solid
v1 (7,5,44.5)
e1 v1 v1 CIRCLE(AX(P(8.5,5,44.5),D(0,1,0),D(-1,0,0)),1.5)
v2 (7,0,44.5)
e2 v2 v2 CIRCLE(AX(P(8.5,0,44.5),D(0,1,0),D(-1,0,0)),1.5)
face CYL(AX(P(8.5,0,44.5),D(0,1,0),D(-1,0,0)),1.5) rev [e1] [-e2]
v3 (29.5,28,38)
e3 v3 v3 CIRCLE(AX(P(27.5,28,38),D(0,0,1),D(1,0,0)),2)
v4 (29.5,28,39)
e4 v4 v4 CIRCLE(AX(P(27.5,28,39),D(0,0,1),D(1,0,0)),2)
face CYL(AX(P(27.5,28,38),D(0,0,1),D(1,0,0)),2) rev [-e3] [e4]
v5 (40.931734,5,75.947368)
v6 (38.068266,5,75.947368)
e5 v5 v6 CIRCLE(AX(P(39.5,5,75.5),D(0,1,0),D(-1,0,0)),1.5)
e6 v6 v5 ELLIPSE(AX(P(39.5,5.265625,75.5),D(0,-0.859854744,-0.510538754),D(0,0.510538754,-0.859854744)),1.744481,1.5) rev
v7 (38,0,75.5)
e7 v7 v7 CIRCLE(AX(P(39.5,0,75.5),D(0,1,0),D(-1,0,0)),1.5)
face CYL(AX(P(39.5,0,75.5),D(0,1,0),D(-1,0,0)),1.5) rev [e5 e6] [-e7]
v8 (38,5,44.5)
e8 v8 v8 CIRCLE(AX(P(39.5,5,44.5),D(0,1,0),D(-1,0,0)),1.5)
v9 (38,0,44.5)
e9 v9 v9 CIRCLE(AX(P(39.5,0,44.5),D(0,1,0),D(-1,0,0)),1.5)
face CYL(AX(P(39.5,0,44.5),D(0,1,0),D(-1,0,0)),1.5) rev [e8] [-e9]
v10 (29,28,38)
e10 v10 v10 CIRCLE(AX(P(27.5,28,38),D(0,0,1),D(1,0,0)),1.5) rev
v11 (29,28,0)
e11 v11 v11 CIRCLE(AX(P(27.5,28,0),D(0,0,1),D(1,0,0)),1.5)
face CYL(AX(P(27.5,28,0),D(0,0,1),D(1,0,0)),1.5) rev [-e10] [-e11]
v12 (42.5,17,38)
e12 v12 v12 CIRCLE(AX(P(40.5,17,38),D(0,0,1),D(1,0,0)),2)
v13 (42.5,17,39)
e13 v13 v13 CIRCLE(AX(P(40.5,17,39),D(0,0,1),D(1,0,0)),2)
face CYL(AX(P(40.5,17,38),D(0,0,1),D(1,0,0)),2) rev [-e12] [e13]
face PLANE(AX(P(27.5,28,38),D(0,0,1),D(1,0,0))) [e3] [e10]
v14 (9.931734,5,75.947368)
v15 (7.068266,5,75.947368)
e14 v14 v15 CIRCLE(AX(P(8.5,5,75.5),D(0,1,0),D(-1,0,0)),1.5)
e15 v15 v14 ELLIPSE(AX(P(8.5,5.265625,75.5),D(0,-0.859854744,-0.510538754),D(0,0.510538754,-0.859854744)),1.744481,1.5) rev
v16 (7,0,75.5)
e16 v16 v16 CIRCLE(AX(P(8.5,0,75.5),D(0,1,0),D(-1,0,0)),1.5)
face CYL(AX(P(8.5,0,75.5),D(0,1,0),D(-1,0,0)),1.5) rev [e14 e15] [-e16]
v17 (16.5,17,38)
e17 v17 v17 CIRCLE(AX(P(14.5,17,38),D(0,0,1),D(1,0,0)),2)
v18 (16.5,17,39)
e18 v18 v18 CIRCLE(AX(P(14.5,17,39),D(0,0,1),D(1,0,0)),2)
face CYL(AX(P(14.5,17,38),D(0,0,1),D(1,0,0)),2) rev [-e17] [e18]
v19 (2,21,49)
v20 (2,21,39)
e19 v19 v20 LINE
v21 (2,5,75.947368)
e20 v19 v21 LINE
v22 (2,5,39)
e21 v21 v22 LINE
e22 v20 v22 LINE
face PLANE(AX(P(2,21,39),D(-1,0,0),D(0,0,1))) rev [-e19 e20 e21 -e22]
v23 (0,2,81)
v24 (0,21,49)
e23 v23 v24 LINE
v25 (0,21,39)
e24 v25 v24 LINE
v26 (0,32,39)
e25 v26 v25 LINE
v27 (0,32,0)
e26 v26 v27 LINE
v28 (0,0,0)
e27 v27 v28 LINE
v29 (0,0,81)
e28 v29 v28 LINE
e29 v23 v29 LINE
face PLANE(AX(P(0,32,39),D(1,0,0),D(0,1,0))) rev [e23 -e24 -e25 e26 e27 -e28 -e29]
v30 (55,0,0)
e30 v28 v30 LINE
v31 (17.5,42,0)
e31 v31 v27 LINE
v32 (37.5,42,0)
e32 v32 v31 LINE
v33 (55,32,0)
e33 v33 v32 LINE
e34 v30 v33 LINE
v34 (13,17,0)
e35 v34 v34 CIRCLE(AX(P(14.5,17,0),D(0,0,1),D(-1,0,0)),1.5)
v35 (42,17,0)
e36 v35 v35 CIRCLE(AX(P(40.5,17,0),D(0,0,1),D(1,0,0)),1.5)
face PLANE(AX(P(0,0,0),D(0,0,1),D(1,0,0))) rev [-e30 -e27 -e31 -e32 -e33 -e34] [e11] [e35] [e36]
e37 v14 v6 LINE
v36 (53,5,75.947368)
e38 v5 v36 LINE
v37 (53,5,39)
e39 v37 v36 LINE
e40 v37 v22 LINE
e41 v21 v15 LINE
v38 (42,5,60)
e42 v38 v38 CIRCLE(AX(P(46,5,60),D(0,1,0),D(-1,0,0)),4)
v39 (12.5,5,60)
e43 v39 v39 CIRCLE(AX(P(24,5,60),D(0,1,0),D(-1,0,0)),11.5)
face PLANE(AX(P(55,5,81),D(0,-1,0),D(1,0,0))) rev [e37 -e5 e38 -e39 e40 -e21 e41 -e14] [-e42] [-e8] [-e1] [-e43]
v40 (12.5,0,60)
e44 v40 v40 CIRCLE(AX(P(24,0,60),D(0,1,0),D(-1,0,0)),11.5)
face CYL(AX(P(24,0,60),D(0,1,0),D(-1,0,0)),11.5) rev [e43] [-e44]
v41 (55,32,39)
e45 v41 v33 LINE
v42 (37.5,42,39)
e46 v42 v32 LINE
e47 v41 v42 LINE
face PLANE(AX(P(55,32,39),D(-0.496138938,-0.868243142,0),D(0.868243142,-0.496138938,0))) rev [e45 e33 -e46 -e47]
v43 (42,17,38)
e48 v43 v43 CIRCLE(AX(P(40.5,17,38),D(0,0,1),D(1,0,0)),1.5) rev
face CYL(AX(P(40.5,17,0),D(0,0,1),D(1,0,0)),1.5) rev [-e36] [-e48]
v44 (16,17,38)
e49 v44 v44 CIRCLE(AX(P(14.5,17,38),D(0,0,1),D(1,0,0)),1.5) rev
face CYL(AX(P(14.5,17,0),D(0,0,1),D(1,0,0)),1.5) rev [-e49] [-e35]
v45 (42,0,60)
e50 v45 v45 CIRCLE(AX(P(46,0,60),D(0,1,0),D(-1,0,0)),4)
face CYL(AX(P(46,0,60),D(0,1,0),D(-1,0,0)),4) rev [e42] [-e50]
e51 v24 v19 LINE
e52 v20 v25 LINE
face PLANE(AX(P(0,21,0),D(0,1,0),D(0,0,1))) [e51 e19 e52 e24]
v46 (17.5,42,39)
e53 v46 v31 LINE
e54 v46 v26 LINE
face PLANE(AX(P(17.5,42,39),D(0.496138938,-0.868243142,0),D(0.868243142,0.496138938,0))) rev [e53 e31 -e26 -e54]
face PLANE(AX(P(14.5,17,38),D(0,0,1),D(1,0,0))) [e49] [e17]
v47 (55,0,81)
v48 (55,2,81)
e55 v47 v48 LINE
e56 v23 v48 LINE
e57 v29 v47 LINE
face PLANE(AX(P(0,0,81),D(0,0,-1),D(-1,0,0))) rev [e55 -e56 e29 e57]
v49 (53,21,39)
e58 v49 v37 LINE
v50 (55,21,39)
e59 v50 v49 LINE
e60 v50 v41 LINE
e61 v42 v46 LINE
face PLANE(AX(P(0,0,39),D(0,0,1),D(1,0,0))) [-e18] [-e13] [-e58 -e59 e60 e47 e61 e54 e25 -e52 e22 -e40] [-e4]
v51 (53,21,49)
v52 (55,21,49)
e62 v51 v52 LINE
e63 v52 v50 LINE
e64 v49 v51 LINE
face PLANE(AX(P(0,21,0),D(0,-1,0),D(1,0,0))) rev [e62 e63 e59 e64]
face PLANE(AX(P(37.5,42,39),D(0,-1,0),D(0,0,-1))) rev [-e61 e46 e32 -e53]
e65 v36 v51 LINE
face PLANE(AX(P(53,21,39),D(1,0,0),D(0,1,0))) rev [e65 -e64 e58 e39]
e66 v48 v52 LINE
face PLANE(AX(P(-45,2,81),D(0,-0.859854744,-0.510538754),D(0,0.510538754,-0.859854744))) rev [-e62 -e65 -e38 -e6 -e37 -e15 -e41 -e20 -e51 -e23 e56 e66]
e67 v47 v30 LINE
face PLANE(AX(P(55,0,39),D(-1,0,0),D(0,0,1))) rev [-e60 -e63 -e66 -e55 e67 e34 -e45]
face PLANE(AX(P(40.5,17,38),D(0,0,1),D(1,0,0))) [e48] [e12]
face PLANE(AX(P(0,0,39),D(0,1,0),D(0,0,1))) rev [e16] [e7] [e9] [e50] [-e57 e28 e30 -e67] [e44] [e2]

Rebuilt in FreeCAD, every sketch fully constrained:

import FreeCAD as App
import Part
import Sketcher

doc = App.newDocument("Part")
body = doc.addObject("PartDesign::Body", "Body")

# Sketch on XY plane
sketch1 = body.newObject("Sketcher::SketchObject", "Sketch")
sketch1.AttachmentSupport = (doc.getObject("XY_Plane"), [""])
sketch1.MapMode = "FlatFace"
sketch1.addGeometry([
    Part.LineSegment(App.Vector(0, 0, 0), App.Vector(55, 0, 0)),  # 0
    Part.LineSegment(App.Vector(55, 0, 0), App.Vector(55, 32, 0)),  # 1
    Part.LineSegment(App.Vector(55, 32, 0), App.Vector(38, 42, 0)),  # 2
    Part.LineSegment(App.Vector(38, 42, 0), App.Vector(18, 42, 0)),  # 3
    Part.LineSegment(App.Vector(18, 42, 0), App.Vector(0, 32, 0)),  # 4
    Part.LineSegment(App.Vector(0, 32, 0), App.Vector(0, 0, 0)),  # 5
], False)
sketch1.addConstraint([
    Sketcher.Constraint("Coincident", 0, 2, 1, 1),
    Sketcher.Constraint("Coincident", 1, 2, 2, 1),
    Sketcher.Constraint("Coincident", 2, 2, 3, 1),
    Sketcher.Constraint("Coincident", 3, 2, 4, 1),
    Sketcher.Constraint("Coincident", 4, 2, 5, 1),
    Sketcher.Constraint("Coincident", 5, 2, 0, 1),
    Sketcher.Constraint("Horizontal", 0),
    Sketcher.Constraint("Vertical", 1),
    Sketcher.Constraint("Horizontal", 3),
    Sketcher.Constraint("Vertical", 5),
    Sketcher.Constraint("Coincident", 5, 2, -1, 1),
    Sketcher.Constraint("Horizontal", 1, 2, 4, 2),
    Sketcher.Constraint("Equal", 2, 4),
    Sketcher.Constraint("DistanceX", 0, 1, 0, 2, 55.0),
    Sketcher.Constraint("DistanceX", 3, 2, 3, 1, 20.0),
    Sketcher.Constraint("DistanceY", 1, 1, 1, 2, 32.0),
    Sketcher.Constraint("DistanceY", -1, 1, 2, 2, 42.0),
])
pad1 = body.newObject("PartDesign::Pad", "Pad")
pad1.Profile = sketch1
pad1.Length = 39

# Sketch on XY plane
sketch2 = body.newObject("Sketcher::SketchObject", "Sketch001")
sketch2.AttachmentSupport = (doc.getObject("XY_Plane"), [""])
sketch2.MapMode = "FlatFace"
sketch2.AttachmentOffset = App.Placement(App.Vector(0, 0, 39), App.Rotation())
sketch2.addGeometry([
    Part.LineSegment(App.Vector(0, 5, 0), App.Vector(0, 0, 0)),
    Part.LineSegment(App.Vector(0, 0, 0), App.Vector(55, 0, 0)),
    Part.LineSegment(App.Vector(55, 0, 0), App.Vector(55, 5, 0)),
    Part.LineSegment(App.Vector(55, 5, 0), App.Vector(0, 5, 0)),
], False)
sketch2.addConstraint([
    Sketcher.Constraint("Coincident", 0, 2, 1, 1),
    Sketcher.Constraint("Coincident", 1, 2, 2, 1),
    Sketcher.Constraint("Coincident", 2, 2, 3, 1),
    Sketcher.Constraint("Coincident", 3, 2, 0, 1),
    Sketcher.Constraint("Vertical", 0),
    Sketcher.Constraint("Horizontal", 1),
    Sketcher.Constraint("Vertical", 2),
    Sketcher.Constraint("Horizontal", 3),
    Sketcher.Constraint("Coincident", 0, 2, -1, 1),
    Sketcher.Constraint("DistanceX", 1, 1, 1, 2, 55.0),
    Sketcher.Constraint("DistanceY", 0, 2, 0, 1, 5.0),
])
pad2 = body.newObject("PartDesign::Pad", "Pad001")
pad2.Profile = sketch2
pad2.Length = 42

# Sketch on XZ plane
sketch3 = body.newObject("Sketcher::SketchObject", "Sketch002")
sketch3.AttachmentSupport = (doc.getObject("XZ_Plane"), [""])
sketch3.MapMode = "FlatFace"
sketch3.AttachmentOffset = App.Placement(App.Vector(0, 0, -5), App.Rotation())
sketch3.addGeometry([
    Part.Circle(App.Vector(24, 60, 0), App.Vector(0, 0, 1), 11.5),  # 0
    Part.Circle(App.Vector(8.5, 44.5, 0), App.Vector(0, 0, 1), 1.5),  # 1
    Part.Circle(App.Vector(39.5, 44.5, 0), App.Vector(0, 0, 1), 1.5),  # 2
    Part.Circle(App.Vector(39.5, 75.5, 0), App.Vector(0, 0, 1), 1.5),  # 3
    Part.Circle(App.Vector(8.5, 75.5, 0), App.Vector(0, 0, 1), 1.5),  # 4
    Part.Circle(App.Vector(46, 60, 0), App.Vector(0, 0, 1), 4),  # 5
], False)
sketch3.addConstraint([
    Sketcher.Constraint("Equal", 1, 2),
    Sketcher.Constraint("Equal", 2, 3),
    Sketcher.Constraint("Equal", 3, 4),
    Sketcher.Constraint("Horizontal", 1, 3, 2, 3),
    Sketcher.Constraint("Horizontal", 3, 3, 4, 3),
    Sketcher.Constraint("Horizontal", 0, 3, 5, 3),
    Sketcher.Constraint("Vertical", 2, 3, 3, 3),
    Sketcher.Constraint("Vertical", 1, 3, 4, 3),
    Sketcher.Constraint("Diameter", 0, 23.0),
    Sketcher.Constraint("Diameter", 1, 3.0),
    Sketcher.Constraint("Diameter", 5, 8.0),
    Sketcher.Constraint("DistanceX", -1, 1, 0, 3, 24.0),
    Sketcher.Constraint("DistanceY", -1, 1, 0, 3, 60.0),
    Sketcher.Constraint("DistanceX", -1, 1, 5, 3, 46.0),
    Sketcher.Constraint("DistanceX", 1, 3, 2, 3, 31.0),
    Sketcher.Constraint("DistanceY", 2, 3, 3, 3, 31.0),
    Sketcher.Constraint("DistanceX", -1, 1, 1, 3, 8.5),
    Sketcher.Constraint("DistanceY", -1, 1, 1, 3, 44.5),
])
pocket1 = body.newObject("PartDesign::Pocket", "Pocket")
pocket1.Profile = sketch3
pocket1.Type = "ThroughAll"
pocket1.Reversed = True

# Sketch on XY plane
sketch4 = body.newObject("Sketcher::SketchObject", "Sketch003")
sketch4.AttachmentSupport = (doc.getObject("XY_Plane"), [""])
sketch4.MapMode = "FlatFace"
sketch4.AttachmentOffset = App.Placement(App.Vector(0, 0, 39), App.Rotation())
sketch4.addGeometry([
    Part.Circle(App.Vector(27.5, 28, 0), App.Vector(0, 0, 1), 1.5),
    Part.Circle(App.Vector(40.5, 17, 0), App.Vector(0, 0, 1), 1.5),
    Part.Circle(App.Vector(14.5, 17, 0), App.Vector(0, 0, 1), 1.5),
], False)
sketch4.addConstraint([
    Sketcher.Constraint("Equal", 0, 1),
    Sketcher.Constraint("Equal", 1, 2),
    Sketcher.Constraint("Horizontal", 1, 3, 2, 3),
    Sketcher.Constraint("Diameter", 0, 3.0),
    Sketcher.Constraint("DistanceY", -1, 1, 0, 3, 28.0),
    Sketcher.Constraint("DistanceY", -1, 1, 1, 3, 17.0),
    Sketcher.Constraint("DistanceX", 0, 3, 1, 3, 13.0),
    Sketcher.Constraint("DistanceX", 2, 3, 0, 3, 13.0),
    Sketcher.Constraint("DistanceX", -1, 1, 0, 3, 27.5),
])
pocket2 = body.newObject("PartDesign::Pocket", "Pocket001")
pocket2.Profile = sketch4
pocket2.Type = "ThroughAll"

# Sketch on XY plane
sketch5 = body.newObject("Sketcher::SketchObject", "Sketch004")
sketch5.AttachmentSupport = (doc.getObject("XY_Plane"), [""])
sketch5.MapMode = "FlatFace"
sketch5.AttachmentOffset = App.Placement(App.Vector(0, 0, 39), App.Rotation())
sketch5.addGeometry([
    Part.Circle(App.Vector(27.5, 28, 0), App.Vector(0, 0, 1), 2),
    Part.Circle(App.Vector(40.5, 17, 0), App.Vector(0, 0, 1), 2),
    Part.Circle(App.Vector(14.5, 17, 0), App.Vector(0, 0, 1), 2),
], False)
sketch5.addConstraint([
    Sketcher.Constraint("Equal", 0, 1),
    Sketcher.Constraint("Equal", 1, 2),
    Sketcher.Constraint("Horizontal", 1, 3, 2, 3),
    Sketcher.Constraint("Diameter", 0, 4.0),
    Sketcher.Constraint("DistanceY", -1, 1, 0, 3, 28.0),
    Sketcher.Constraint("DistanceY", -1, 1, 1, 3, 17.0),
    Sketcher.Constraint("DistanceX", 0, 3, 1, 3, 13.0),
    Sketcher.Constraint("DistanceX", 2, 3, 0, 3, 13.0),
    Sketcher.Constraint("DistanceX", -1, 1, 0, 3, 27.5),
])
pocket3 = body.newObject("PartDesign::Pocket", "Pocket002")
pocket3.Profile = sketch5
pocket3.Length = 1

# Sketch on XZ plane
sketch6 = body.newObject("Sketcher::SketchObject", "Sketch005")
sketch6.AttachmentSupport = (doc.getObject("XZ_Plane"), [""])
sketch6.MapMode = "FlatFace"
sketch6.AttachmentOffset = App.Placement(App.Vector(0, 0, -5), App.Rotation())
sketch6.addGeometry([
    Part.LineSegment(App.Vector(0, 39, 0), App.Vector(0, 81, 0)),  # 0
    Part.LineSegment(App.Vector(0, 81, 0), App.Vector(2, 81, 0)),  # 1
    Part.LineSegment(App.Vector(2, 81, 0), App.Vector(2, 39, 0)),  # 2
    Part.LineSegment(App.Vector(2, 39, 0), App.Vector(0, 39, 0)),  # 3
    Part.LineSegment(App.Vector(53, 39, 0), App.Vector(53, 81, 0)),  # 4
    Part.LineSegment(App.Vector(53, 81, 0), App.Vector(55, 81, 0)),  # 5
    Part.LineSegment(App.Vector(55, 81, 0), App.Vector(55, 39, 0)),  # 6
    Part.LineSegment(App.Vector(55, 39, 0), App.Vector(53, 39, 0)),  # 7
], False)
sketch6.addConstraint([
    Sketcher.Constraint("Coincident", 0, 2, 1, 1),
    Sketcher.Constraint("Coincident", 1, 2, 2, 1),
    Sketcher.Constraint("Coincident", 2, 2, 3, 1),
    Sketcher.Constraint("Coincident", 3, 2, 0, 1),
    Sketcher.Constraint("Coincident", 4, 2, 5, 1),
    Sketcher.Constraint("Coincident", 5, 2, 6, 1),
    Sketcher.Constraint("Coincident", 6, 2, 7, 1),
    Sketcher.Constraint("Coincident", 7, 2, 4, 1),
    Sketcher.Constraint("Vertical", 0),
    Sketcher.Constraint("Horizontal", 1),
    Sketcher.Constraint("Vertical", 2),
    Sketcher.Constraint("Horizontal", 3),
    Sketcher.Constraint("Vertical", 4),
    Sketcher.Constraint("Horizontal", 5),
    Sketcher.Constraint("Vertical", 6),
    Sketcher.Constraint("Horizontal", 7),
    Sketcher.Constraint("PointOnObject", 0, 2, -2),
    Sketcher.Constraint("Horizontal", 1, 2, 4, 2),
    Sketcher.Constraint("Horizontal", 3, 2, 6, 2),
    Sketcher.Constraint("Equal", 3, 5),
    Sketcher.Constraint("DistanceX", 1, 1, 1, 2, 2.0),
    Sketcher.Constraint("DistanceY", 0, 1, 0, 2, 42.0),
    Sketcher.Constraint("DistanceY", -1, 1, 0, 2, 81.0),
    Sketcher.Constraint("DistanceX", -1, 1, 4, 2, 53.0),
])
pad3 = body.newObject("PartDesign::Pad", "Pad002")
pad3.Profile = sketch6
pad3.Length = 16
pad3.Reversed = True

# Sketch on YZ plane
sketch7 = body.newObject("Sketcher::SketchObject", "Sketch006")
sketch7.AttachmentSupport = (doc.getObject("YZ_Plane"), [""])
sketch7.MapMode = "FlatFace"
sketch7.AttachmentOffset = App.Placement(App.Vector(0, 0, 55), App.Rotation())
sketch7.addGeometry([
    Part.LineSegment(App.Vector(21, 49, 0), App.Vector(21, 81, 0)),
    Part.LineSegment(App.Vector(21, 81, 0), App.Vector(2, 81, 0)),
    Part.LineSegment(App.Vector(2, 81, 0), App.Vector(21, 49, 0)),
], False)
sketch7.addConstraint([
    Sketcher.Constraint("Coincident", 0, 2, 1, 1),
    Sketcher.Constraint("Coincident", 1, 2, 2, 1),
    Sketcher.Constraint("Coincident", 2, 2, 0, 1),
    Sketcher.Constraint("Vertical", 0),
    Sketcher.Constraint("Horizontal", 1),
    Sketcher.Constraint("DistanceX", 1, 2, 1, 1, 19.0),
    Sketcher.Constraint("DistanceY", 0, 1, 0, 2, 32.0),
    Sketcher.Constraint("DistanceX", -1, 1, 0, 2, 21.0),
    Sketcher.Constraint("DistanceY", -1, 1, 0, 2, 81.0),
])
pocket4 = body.newObject("PartDesign::Pocket", "Pocket003")
pocket4.Profile = sketch7
pocket4.Length = 100

doc.recompute()
